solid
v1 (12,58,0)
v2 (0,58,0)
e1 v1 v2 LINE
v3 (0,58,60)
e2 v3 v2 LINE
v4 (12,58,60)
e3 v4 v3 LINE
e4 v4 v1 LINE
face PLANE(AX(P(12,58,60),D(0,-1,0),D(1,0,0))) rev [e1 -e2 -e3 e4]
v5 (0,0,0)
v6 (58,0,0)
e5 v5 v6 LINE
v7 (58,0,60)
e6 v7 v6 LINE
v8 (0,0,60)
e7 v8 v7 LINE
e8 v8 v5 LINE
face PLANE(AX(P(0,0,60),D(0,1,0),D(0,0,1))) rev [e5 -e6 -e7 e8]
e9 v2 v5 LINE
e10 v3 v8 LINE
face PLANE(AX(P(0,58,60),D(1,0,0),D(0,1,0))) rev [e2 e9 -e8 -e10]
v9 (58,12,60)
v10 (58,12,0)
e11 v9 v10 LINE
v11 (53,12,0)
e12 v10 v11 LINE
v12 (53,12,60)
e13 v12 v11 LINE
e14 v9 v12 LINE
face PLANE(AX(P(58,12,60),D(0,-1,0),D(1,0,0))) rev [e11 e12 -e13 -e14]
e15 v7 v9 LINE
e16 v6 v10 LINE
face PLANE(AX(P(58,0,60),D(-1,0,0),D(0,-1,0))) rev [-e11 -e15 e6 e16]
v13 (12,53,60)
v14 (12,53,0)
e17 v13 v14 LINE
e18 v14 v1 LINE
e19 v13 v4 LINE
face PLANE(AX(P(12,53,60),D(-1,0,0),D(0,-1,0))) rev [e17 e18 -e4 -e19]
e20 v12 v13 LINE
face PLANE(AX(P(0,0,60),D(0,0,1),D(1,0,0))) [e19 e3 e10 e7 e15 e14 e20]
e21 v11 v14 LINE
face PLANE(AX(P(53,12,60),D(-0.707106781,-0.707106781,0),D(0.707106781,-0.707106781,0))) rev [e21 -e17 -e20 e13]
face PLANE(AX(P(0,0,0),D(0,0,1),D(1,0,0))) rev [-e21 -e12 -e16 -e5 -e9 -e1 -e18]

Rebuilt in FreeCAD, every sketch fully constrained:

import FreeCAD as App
import Part
import Sketcher
from FreeCAD import Vector
Q = App.Units.Quantity

doc = App.newDocument("Part")
params = doc.addObject("Spreadsheet::Sheet", "Params")
for row, (alias, value) in enumerate([
    ("sketch1_width", "58 mm"),
    ("sketch1_width2", "5 mm"),
    ("sketch1_width3", "12 mm"),
    ("pad1_length", "60 mm"),
], start=1):
    params.set(f"A{row}", alias)
    params.set(f"B{row}", "=" + value)
    params.setAlias(f"B{row}", alias)

body = doc.addObject("PartDesign::Body", "Body")

# Sketch on XY plane
sketch1 = body.newObject("Sketcher::SketchObject", "Sketch")
sketch1.AttachmentSupport = (doc.getObject("XY_Plane"), [""])
sketch1.MapMode = "FlatFace"
sketch1.addGeometry([
    Part.LineSegment(Vector(0, 58, 0), Vector(0, 0, 0)),  # 0
    Part.LineSegment(Vector(0, 0, 0), Vector(58, 0, 0)),  # 1
    Part.LineSegment(Vector(58, 0, 0), Vector(58, 12, 0)),  # 2
    Part.LineSegment(Vector(58, 12, 0), Vector(53, 12, 0)),  # 3
    Part.LineSegment(Vector(53, 12, 0), Vector(12, 53, 0)),  # 4
    Part.LineSegment(Vector(12, 53, 0), Vector(12, 58, 0)),  # 5
    Part.LineSegment(Vector(12, 58, 0), Vector(0, 58, 0)),  # 6
], False)
sketch1.addConstraint([
    Sketcher.Constraint("Coincident", 0, 2, 1, 1),
    Sketcher.Constraint("Coincident", 1, 2, 2, 1),
    Sketcher.Constraint("Coincident", 2, 2, 3, 1),
    Sketcher.Constraint("Coincident", 3, 2, 4, 1),
    Sketcher.Constraint("Coincident", 4, 2, 5, 1),
    Sketcher.Constraint("Coincident", 5, 2, 6, 1),
    Sketcher.Constraint("Coincident", 6, 2, 0, 1),
    Sketcher.Constraint("Vertical", 0),
    Sketcher.Constraint("Horizontal", 1),
    Sketcher.Constraint("Vertical", 2),
    Sketcher.Constraint("Horizontal", 3),
    Sketcher.Constraint("Vertical", 5),
    Sketcher.Constraint("Horizontal", 6),
    Sketcher.Constraint("Coincident", 0, 2, -1, 1),
    Sketcher.Constraint("Equal", 1, 0),
    Sketcher.Constraint("Equal", 6, 2),
    Sketcher.Constraint("Equal", 3, 5),
    Sketcher.Constraint("DistanceX", 1, 1, 1, 2, Q("58 mm")),
    Sketcher.Constraint("DistanceX", 3, 2, 3, 1, Q("5 mm")),
    Sketcher.Constraint("DistanceX", 6, 2, 6, 1, Q("12 mm")),
])
sketch1.setExpression("Constraints[17]", "Params.sketch1_width")
sketch1.setExpression("Constraints[18]", "Params.sketch1_width2")
sketch1.setExpression("Constraints[19]", "Params.sketch1_width3")
pad1 = body.newObject("PartDesign::Pad", "Pad")
pad1.Profile = sketch1
pad1.setExpression("Length", "Params.pad1_length")

doc.recompute()
